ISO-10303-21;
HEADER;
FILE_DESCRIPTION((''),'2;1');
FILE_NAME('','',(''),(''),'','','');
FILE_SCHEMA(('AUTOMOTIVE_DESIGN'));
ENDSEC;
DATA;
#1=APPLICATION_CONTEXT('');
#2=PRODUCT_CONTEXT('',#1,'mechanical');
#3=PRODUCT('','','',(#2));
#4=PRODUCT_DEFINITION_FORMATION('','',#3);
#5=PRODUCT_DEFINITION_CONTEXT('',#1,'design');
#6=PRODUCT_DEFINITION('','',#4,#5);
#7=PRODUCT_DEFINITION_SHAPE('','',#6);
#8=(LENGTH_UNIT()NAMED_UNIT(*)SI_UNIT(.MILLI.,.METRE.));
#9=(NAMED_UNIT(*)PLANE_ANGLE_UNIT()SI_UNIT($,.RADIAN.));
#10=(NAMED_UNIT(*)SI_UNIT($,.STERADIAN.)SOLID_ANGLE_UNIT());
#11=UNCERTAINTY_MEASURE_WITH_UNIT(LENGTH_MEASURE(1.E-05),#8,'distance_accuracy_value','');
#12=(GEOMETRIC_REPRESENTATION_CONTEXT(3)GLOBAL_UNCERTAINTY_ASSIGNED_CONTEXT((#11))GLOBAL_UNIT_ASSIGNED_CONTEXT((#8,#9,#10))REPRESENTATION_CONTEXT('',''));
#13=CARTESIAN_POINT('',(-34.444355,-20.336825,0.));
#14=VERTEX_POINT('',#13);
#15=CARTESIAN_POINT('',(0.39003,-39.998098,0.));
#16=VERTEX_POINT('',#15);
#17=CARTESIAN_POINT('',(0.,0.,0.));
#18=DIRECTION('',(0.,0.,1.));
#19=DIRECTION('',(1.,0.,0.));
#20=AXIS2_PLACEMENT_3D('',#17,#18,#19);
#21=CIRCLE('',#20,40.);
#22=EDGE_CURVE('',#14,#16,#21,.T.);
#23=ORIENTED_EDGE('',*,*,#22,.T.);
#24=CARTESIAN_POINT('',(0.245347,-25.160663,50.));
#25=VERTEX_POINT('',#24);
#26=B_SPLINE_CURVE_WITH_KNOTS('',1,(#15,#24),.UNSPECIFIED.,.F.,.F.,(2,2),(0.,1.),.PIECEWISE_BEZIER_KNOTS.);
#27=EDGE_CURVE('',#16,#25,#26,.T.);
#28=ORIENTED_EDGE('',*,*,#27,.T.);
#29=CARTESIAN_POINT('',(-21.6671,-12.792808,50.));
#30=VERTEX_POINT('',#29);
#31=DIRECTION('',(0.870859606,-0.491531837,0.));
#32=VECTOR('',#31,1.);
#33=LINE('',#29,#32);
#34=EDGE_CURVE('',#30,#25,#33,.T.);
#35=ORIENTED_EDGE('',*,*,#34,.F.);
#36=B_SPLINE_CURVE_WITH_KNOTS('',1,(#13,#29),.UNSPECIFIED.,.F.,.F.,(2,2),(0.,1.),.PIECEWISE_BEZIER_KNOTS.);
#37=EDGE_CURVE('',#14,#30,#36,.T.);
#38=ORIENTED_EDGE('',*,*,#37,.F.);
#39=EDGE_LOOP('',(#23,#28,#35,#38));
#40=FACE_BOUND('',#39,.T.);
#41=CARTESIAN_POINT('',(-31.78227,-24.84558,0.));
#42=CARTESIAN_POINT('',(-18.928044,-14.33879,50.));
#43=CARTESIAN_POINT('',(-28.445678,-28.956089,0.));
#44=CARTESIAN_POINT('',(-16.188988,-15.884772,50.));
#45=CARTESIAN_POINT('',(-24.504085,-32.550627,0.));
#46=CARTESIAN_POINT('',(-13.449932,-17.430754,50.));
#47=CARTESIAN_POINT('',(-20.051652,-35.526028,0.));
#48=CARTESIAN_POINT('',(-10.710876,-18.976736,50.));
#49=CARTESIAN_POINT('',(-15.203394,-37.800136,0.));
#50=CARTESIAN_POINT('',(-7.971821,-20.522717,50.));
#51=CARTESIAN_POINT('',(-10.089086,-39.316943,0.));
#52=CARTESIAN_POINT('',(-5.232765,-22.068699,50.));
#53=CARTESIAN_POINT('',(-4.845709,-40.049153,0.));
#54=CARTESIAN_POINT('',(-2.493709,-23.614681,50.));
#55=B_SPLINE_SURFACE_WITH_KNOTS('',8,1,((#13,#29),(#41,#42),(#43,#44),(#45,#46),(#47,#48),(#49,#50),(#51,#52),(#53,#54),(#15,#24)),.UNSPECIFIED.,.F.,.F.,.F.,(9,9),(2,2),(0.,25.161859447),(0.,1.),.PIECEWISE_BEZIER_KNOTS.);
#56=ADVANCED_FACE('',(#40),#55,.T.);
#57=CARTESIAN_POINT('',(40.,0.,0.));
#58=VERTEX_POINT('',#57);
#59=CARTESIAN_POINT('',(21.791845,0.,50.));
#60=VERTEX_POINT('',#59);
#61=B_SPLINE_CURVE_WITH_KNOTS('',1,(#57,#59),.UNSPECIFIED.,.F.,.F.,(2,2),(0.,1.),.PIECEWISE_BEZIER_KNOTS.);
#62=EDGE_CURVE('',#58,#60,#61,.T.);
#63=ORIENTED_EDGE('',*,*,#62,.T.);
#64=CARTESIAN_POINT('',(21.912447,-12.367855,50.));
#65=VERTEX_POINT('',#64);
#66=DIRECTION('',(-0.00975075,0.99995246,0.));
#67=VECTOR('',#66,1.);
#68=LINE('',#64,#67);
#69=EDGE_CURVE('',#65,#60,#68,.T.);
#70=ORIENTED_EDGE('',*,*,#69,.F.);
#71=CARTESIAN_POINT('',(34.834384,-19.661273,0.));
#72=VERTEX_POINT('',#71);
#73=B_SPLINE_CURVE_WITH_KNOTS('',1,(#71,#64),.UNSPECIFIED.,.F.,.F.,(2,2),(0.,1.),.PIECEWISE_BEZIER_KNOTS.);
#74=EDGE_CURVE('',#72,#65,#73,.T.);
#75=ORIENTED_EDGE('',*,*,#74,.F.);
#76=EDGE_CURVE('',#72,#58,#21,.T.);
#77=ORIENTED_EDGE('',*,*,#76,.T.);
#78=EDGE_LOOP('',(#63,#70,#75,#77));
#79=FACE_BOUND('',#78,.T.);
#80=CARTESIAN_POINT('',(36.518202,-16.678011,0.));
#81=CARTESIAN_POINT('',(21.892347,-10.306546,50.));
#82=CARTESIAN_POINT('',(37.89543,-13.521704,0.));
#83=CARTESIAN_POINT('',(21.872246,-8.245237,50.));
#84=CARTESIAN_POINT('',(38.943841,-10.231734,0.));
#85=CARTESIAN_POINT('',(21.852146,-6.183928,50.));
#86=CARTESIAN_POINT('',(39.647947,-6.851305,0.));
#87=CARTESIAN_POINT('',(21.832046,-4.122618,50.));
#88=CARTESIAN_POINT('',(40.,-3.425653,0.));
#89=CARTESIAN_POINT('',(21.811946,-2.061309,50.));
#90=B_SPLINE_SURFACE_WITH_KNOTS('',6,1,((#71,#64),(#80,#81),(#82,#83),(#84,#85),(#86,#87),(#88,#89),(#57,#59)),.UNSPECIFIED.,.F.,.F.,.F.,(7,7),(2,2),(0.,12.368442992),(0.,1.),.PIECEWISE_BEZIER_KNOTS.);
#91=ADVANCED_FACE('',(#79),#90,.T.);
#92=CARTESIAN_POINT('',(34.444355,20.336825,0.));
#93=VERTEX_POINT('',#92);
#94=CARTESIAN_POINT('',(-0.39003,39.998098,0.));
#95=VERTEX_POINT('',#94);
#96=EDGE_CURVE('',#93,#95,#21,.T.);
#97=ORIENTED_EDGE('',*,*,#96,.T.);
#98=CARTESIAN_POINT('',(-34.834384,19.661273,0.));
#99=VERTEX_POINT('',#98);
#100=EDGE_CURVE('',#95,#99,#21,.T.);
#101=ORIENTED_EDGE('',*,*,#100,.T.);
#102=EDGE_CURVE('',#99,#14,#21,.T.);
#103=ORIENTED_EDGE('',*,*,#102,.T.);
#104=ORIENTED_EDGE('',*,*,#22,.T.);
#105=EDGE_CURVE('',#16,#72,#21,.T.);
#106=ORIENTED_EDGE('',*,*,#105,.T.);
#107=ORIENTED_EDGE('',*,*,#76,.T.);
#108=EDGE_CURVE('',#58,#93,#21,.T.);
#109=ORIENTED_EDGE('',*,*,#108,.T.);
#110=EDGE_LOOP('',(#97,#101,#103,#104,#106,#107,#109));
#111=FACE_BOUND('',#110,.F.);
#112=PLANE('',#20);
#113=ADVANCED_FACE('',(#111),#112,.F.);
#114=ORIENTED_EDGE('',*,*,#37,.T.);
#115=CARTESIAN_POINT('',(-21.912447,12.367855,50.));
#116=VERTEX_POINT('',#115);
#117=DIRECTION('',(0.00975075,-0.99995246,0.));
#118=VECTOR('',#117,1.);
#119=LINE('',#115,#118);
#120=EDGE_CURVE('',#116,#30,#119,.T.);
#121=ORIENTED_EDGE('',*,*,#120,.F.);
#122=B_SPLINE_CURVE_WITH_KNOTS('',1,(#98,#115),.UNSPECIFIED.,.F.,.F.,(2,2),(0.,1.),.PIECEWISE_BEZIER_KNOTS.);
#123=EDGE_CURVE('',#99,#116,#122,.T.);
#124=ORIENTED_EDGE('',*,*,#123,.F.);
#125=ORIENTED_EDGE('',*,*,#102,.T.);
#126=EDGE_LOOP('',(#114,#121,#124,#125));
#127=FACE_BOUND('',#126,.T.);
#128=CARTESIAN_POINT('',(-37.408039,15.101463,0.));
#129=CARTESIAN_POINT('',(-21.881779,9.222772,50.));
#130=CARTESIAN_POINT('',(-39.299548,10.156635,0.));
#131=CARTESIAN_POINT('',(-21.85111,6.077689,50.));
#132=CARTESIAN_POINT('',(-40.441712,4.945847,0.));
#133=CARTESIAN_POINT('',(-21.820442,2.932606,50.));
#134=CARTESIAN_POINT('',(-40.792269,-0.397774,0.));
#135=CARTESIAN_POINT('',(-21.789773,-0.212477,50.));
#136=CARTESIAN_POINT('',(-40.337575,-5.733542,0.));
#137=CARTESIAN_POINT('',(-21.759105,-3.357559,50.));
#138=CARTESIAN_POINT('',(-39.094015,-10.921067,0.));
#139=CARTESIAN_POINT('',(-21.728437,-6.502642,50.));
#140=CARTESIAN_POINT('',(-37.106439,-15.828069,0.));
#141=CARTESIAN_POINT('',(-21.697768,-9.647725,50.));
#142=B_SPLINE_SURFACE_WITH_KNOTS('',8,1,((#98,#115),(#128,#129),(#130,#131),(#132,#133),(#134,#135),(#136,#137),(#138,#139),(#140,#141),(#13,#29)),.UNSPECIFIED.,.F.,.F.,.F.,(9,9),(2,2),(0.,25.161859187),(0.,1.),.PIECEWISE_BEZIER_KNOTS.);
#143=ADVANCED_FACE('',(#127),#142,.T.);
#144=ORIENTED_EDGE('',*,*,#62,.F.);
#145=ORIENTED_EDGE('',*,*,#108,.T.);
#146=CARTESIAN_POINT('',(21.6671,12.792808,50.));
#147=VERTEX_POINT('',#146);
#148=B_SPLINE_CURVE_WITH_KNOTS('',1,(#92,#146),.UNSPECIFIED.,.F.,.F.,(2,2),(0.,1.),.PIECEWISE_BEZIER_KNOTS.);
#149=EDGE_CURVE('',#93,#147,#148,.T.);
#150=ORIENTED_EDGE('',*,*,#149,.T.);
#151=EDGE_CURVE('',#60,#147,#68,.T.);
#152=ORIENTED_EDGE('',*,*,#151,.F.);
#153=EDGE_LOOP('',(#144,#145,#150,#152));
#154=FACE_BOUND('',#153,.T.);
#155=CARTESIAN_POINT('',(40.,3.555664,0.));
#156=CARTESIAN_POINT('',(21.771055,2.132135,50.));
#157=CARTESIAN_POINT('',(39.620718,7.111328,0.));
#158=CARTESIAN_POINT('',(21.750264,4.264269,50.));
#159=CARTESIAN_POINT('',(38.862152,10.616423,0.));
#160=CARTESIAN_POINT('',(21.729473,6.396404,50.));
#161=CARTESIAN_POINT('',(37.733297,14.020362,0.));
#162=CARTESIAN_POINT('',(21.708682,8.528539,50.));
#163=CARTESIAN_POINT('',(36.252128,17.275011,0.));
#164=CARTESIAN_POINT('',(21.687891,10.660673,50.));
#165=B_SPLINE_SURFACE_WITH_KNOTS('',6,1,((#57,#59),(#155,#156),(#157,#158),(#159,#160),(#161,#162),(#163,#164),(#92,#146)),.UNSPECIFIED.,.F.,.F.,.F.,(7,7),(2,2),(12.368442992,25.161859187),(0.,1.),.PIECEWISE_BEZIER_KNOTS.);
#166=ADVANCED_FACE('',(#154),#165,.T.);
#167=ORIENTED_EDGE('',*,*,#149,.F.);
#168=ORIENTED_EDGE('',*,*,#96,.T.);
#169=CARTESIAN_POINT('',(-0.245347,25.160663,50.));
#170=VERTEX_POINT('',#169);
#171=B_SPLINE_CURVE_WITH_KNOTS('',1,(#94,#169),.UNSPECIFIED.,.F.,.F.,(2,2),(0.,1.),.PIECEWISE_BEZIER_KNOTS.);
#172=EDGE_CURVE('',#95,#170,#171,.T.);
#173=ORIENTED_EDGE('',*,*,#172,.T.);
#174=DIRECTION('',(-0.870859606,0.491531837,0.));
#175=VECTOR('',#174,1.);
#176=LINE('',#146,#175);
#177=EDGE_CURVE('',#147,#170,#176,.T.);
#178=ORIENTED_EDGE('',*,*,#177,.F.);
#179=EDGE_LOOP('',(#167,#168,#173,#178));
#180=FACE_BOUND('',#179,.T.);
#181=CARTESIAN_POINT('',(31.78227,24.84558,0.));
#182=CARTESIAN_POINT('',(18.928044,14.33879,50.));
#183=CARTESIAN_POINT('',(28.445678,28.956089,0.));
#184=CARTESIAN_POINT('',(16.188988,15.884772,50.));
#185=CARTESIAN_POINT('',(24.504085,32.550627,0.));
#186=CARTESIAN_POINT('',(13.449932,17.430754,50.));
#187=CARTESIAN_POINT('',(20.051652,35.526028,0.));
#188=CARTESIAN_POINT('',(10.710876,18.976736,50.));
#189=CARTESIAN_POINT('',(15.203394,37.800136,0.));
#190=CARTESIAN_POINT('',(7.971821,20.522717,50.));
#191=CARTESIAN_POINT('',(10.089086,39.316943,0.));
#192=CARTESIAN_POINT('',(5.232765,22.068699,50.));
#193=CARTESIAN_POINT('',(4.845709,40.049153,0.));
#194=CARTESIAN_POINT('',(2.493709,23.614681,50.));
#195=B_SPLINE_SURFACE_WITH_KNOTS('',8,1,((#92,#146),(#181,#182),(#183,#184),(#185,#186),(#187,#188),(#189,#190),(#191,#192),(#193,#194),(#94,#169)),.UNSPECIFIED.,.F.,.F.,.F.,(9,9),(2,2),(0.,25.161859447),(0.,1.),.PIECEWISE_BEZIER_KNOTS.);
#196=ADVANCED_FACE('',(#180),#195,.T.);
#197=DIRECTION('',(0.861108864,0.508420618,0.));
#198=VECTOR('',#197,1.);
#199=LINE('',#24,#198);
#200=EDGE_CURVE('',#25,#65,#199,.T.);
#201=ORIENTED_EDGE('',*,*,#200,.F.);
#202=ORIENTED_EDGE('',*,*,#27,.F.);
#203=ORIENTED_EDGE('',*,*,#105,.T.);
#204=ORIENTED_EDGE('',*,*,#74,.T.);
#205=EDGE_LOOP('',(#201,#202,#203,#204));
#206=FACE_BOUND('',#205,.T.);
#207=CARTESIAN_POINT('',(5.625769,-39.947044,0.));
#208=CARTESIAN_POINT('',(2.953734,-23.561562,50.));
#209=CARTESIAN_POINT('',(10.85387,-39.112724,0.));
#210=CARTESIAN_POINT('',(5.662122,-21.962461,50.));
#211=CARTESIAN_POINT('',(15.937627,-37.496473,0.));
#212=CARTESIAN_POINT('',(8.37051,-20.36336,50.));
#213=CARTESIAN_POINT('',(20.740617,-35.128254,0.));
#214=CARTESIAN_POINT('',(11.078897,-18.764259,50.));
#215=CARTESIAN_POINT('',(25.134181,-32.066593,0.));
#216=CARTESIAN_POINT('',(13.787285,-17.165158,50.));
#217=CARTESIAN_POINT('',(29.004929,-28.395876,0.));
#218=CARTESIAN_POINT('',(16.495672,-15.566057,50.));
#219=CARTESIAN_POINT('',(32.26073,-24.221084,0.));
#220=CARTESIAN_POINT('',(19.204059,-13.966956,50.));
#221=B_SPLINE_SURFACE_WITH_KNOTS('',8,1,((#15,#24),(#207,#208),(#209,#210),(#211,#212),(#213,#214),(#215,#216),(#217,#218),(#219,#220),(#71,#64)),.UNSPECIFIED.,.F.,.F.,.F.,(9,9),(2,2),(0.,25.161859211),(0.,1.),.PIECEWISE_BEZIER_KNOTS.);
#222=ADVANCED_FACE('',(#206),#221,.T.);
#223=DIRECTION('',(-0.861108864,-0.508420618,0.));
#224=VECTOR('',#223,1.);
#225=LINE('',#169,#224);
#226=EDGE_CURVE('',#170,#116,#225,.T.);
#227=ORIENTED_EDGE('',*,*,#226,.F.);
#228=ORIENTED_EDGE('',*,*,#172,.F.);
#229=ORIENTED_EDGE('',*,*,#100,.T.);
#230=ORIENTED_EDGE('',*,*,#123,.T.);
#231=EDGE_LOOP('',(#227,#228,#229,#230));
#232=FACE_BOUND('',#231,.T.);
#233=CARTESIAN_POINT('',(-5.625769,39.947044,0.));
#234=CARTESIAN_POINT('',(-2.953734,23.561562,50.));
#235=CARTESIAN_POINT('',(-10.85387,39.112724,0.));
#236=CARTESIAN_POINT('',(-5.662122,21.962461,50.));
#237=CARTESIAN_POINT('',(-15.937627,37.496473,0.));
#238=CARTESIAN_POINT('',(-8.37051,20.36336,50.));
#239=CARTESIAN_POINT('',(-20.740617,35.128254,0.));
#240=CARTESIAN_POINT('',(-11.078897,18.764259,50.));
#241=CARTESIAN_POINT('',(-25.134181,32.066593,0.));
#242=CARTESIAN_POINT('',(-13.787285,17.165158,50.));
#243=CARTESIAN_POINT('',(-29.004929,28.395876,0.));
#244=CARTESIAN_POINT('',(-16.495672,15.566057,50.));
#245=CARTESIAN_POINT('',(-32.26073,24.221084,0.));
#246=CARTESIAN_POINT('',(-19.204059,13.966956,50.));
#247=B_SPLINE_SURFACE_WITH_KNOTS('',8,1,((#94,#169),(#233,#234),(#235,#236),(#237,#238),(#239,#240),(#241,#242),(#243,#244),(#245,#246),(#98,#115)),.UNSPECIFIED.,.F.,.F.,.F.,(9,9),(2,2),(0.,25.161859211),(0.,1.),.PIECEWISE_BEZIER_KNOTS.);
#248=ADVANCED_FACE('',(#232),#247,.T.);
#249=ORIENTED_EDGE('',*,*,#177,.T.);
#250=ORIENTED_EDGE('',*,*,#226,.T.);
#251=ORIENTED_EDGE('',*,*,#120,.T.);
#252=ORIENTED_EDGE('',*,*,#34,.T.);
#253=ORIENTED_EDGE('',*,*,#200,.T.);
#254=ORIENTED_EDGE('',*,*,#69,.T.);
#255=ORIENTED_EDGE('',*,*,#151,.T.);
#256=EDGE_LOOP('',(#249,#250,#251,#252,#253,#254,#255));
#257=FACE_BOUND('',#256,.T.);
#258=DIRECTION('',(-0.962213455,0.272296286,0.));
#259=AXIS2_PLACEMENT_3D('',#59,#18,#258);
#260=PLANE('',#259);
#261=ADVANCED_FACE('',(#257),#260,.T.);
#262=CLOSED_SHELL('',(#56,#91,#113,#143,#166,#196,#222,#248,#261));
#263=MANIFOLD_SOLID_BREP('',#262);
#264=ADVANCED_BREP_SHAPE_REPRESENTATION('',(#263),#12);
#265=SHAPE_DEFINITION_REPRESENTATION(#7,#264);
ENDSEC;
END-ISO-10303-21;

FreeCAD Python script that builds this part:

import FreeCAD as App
import Part
import Sketcher
from FreeCAD import Vector

doc = App.newDocument("Part")
body = doc.addObject("PartDesign::Body", "Body")

# Sketch on XY plane
sketch1 = body.newObject("Sketcher::SketchObject", "Sketch")
sketch1.AttachmentSupport = (doc.getObject("XY_Plane"), [""])
sketch1.MapMode = "FlatFace"
sketch1.addGeometry(Part.Circle(Vector(0, 0, 0), Vector(0, 0, 1), 40), False)
sketch1.addConstraint([
    Sketcher.Constraint("Coincident", 0, 3, -1, 1),
    Sketcher.Constraint("Diameter", 0, 80.0),
])

# Sketch on XY plane
sketch2 = body.newObject("Sketcher::SketchObject", "Sketch001")
sketch2.AttachmentSupport = (doc.getObject("XY_Plane"), [""])
sketch2.MapMode = "FlatFace"
sketch2.AttachmentOffset = App.Placement(Vector(0, 0, 50), App.Rotation())
sketch2.addGeometry([
    Part.LineSegment(Vector(0, -25, 0), Vector(22, -12, 0)),  # 0
    Part.LineSegment(Vector(22, -12, 0), Vector(22, 13, 0)),  # 1
    Part.LineSegment(Vector(22, 13, 0), Vector(0, 25, 0)),  # 2
    Part.LineSegment(Vector(0, 25, 0), Vector(-22, 12, 0)),  # 3
    Part.LineSegment(Vector(-22, 12, 0), Vector(-22, -13, 0)),  # 4
    Part.LineSegment(Vector(-22, -13, 0), Vector(0, -25, 0)),  # 5
], False)
sketch2.addConstraint([
    Sketcher.Constraint("Coincident", 0, 2, 1, 1),
    Sketcher.Constraint("Coincident", 1, 2, 2, 1),
    Sketcher.Constraint("Coincident", 2, 2, 3, 1),
    Sketcher.Constraint("Coincident", 3, 2, 4, 1),
    Sketcher.Constraint("Coincident", 4, 2, 5, 1),
    Sketcher.Constraint("Coincident", 5, 2, 0, 1),
    Sketcher.Constraint("Symmetric", 0, 2, 3, 2, -1, 1),
    Sketcher.Constraint("Symmetric", 1, 2, 4, 2, -1, 1),
    Sketcher.Constraint("Symmetric", 2, 2, 5, 2, -1, 1),
    Sketcher.Constraint("Equal", 0, 1),
    Sketcher.Constraint("Equal", 1, 2),
    Sketcher.Constraint("DistanceX", -1, 1, 1, 2, 21.6671),
    Sketcher.Constraint("DistanceX", 3, 2, 2, 2, 21.6671),
    Sketcher.Constraint("Distance", 0, 25.161859),
    Sketcher.Constraint("DistanceY", -1, 1, 1, 2, 12.792808),
])

additiveloft = body.newObject("PartDesign::AdditiveLoft", "AdditiveLoft")
additiveloft.Profile = sketch1
additiveloft.Sections = [sketch2]

doc.recompute()
